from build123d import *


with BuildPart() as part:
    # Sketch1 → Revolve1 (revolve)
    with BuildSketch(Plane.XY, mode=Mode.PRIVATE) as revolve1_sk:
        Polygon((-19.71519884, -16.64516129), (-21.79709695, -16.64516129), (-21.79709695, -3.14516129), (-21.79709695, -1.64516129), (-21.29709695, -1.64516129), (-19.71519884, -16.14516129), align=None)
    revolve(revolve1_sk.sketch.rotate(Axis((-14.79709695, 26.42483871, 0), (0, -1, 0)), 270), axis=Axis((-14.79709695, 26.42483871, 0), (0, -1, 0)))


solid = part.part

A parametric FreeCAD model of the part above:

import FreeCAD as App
import Part
import Sketcher

V = App.Vector


def add_polygon(sketch, points):
    """Adds a closed chain of lines whose ends are joined by coincident constraints."""
    first, n = sketch.GeometryCount, len(points)
    for a, b in zip(points, points[1:] + points[:1]):
        sketch.addGeometry(Part.LineSegment(App.Vector(*a, 0), App.Vector(*b, 0)), False)
    for i in range(n):
        sketch.addConstraint(Sketcher.Constraint("Coincident", first + i, 2, first + (i + 1) % n, 1))

doc = App.newDocument("Part")
body = doc.addObject("PartDesign::Body", "Body")

sketch1 = doc.addObject("Sketcher::SketchObject", "Sketch")
body.addObject(sketch1)
sketch1.AttachmentSupport = (doc.XY_Plane, [""])
sketch1.MapMode = "FlatFace"
add_polygon(sketch1, [(-21.8, -16.6), (-19.7, -16.6), (-19.7, -16.1), (-21.3, -1.6), (-21.8, -1.6)])
sketch1.addGeometry(Part.LineSegment(V(-14.8, -1.6, 0), V(-14.8, -16.6, 0)), True)
sketch1.addConstraint(Sketcher.Constraint("Horizontal", 0))
sketch1.addConstraint(Sketcher.Constraint("Vertical", 1))
sketch1.addConstraint(Sketcher.Constraint("Horizontal", 3))
sketch1.addConstraint(Sketcher.Constraint("Vertical", 4))
sketch1.addConstraint(Sketcher.Constraint("Vertical", 5))
sketch1.addConstraint(Sketcher.Constraint("Horizontal", 3, 2, 5, 1))
sketch1.addConstraint(Sketcher.Constraint("Horizontal", 4, 2, 5, 2))
sketch1.addConstraint(Sketcher.Constraint("Equal", 3, 1))
sketch1.addConstraint(Sketcher.Constraint("DistanceY", 4, 2, 4, 1, 15.0))
sketch1.addConstraint(Sketcher.Constraint("DistanceX", 3, 2, 3, 1, 0.5))
sketch1.addConstraint(Sketcher.Constraint("DistanceX", 3, 2, 5, 1, 7.0))
sketch1.addConstraint(Sketcher.Constraint("DistanceX", 0, 1, 0, 2, 2.081898))
sketch1.addConstraint(Sketcher.Constraint("DistanceX", 0, 2, -1, 1, 19.715199))
sketch1.addConstraint(Sketcher.Constraint("DistanceY", 0, 2, -1, 1, 16.645161))
revolution = doc.addObject("PartDesign::Revolution", "Revolution")
body.addObject(revolution)
revolution.Profile = sketch1
revolution.ReferenceAxis = (sketch1, ["Axis0"])
revolution.Angle = 360

doc.recompute()
